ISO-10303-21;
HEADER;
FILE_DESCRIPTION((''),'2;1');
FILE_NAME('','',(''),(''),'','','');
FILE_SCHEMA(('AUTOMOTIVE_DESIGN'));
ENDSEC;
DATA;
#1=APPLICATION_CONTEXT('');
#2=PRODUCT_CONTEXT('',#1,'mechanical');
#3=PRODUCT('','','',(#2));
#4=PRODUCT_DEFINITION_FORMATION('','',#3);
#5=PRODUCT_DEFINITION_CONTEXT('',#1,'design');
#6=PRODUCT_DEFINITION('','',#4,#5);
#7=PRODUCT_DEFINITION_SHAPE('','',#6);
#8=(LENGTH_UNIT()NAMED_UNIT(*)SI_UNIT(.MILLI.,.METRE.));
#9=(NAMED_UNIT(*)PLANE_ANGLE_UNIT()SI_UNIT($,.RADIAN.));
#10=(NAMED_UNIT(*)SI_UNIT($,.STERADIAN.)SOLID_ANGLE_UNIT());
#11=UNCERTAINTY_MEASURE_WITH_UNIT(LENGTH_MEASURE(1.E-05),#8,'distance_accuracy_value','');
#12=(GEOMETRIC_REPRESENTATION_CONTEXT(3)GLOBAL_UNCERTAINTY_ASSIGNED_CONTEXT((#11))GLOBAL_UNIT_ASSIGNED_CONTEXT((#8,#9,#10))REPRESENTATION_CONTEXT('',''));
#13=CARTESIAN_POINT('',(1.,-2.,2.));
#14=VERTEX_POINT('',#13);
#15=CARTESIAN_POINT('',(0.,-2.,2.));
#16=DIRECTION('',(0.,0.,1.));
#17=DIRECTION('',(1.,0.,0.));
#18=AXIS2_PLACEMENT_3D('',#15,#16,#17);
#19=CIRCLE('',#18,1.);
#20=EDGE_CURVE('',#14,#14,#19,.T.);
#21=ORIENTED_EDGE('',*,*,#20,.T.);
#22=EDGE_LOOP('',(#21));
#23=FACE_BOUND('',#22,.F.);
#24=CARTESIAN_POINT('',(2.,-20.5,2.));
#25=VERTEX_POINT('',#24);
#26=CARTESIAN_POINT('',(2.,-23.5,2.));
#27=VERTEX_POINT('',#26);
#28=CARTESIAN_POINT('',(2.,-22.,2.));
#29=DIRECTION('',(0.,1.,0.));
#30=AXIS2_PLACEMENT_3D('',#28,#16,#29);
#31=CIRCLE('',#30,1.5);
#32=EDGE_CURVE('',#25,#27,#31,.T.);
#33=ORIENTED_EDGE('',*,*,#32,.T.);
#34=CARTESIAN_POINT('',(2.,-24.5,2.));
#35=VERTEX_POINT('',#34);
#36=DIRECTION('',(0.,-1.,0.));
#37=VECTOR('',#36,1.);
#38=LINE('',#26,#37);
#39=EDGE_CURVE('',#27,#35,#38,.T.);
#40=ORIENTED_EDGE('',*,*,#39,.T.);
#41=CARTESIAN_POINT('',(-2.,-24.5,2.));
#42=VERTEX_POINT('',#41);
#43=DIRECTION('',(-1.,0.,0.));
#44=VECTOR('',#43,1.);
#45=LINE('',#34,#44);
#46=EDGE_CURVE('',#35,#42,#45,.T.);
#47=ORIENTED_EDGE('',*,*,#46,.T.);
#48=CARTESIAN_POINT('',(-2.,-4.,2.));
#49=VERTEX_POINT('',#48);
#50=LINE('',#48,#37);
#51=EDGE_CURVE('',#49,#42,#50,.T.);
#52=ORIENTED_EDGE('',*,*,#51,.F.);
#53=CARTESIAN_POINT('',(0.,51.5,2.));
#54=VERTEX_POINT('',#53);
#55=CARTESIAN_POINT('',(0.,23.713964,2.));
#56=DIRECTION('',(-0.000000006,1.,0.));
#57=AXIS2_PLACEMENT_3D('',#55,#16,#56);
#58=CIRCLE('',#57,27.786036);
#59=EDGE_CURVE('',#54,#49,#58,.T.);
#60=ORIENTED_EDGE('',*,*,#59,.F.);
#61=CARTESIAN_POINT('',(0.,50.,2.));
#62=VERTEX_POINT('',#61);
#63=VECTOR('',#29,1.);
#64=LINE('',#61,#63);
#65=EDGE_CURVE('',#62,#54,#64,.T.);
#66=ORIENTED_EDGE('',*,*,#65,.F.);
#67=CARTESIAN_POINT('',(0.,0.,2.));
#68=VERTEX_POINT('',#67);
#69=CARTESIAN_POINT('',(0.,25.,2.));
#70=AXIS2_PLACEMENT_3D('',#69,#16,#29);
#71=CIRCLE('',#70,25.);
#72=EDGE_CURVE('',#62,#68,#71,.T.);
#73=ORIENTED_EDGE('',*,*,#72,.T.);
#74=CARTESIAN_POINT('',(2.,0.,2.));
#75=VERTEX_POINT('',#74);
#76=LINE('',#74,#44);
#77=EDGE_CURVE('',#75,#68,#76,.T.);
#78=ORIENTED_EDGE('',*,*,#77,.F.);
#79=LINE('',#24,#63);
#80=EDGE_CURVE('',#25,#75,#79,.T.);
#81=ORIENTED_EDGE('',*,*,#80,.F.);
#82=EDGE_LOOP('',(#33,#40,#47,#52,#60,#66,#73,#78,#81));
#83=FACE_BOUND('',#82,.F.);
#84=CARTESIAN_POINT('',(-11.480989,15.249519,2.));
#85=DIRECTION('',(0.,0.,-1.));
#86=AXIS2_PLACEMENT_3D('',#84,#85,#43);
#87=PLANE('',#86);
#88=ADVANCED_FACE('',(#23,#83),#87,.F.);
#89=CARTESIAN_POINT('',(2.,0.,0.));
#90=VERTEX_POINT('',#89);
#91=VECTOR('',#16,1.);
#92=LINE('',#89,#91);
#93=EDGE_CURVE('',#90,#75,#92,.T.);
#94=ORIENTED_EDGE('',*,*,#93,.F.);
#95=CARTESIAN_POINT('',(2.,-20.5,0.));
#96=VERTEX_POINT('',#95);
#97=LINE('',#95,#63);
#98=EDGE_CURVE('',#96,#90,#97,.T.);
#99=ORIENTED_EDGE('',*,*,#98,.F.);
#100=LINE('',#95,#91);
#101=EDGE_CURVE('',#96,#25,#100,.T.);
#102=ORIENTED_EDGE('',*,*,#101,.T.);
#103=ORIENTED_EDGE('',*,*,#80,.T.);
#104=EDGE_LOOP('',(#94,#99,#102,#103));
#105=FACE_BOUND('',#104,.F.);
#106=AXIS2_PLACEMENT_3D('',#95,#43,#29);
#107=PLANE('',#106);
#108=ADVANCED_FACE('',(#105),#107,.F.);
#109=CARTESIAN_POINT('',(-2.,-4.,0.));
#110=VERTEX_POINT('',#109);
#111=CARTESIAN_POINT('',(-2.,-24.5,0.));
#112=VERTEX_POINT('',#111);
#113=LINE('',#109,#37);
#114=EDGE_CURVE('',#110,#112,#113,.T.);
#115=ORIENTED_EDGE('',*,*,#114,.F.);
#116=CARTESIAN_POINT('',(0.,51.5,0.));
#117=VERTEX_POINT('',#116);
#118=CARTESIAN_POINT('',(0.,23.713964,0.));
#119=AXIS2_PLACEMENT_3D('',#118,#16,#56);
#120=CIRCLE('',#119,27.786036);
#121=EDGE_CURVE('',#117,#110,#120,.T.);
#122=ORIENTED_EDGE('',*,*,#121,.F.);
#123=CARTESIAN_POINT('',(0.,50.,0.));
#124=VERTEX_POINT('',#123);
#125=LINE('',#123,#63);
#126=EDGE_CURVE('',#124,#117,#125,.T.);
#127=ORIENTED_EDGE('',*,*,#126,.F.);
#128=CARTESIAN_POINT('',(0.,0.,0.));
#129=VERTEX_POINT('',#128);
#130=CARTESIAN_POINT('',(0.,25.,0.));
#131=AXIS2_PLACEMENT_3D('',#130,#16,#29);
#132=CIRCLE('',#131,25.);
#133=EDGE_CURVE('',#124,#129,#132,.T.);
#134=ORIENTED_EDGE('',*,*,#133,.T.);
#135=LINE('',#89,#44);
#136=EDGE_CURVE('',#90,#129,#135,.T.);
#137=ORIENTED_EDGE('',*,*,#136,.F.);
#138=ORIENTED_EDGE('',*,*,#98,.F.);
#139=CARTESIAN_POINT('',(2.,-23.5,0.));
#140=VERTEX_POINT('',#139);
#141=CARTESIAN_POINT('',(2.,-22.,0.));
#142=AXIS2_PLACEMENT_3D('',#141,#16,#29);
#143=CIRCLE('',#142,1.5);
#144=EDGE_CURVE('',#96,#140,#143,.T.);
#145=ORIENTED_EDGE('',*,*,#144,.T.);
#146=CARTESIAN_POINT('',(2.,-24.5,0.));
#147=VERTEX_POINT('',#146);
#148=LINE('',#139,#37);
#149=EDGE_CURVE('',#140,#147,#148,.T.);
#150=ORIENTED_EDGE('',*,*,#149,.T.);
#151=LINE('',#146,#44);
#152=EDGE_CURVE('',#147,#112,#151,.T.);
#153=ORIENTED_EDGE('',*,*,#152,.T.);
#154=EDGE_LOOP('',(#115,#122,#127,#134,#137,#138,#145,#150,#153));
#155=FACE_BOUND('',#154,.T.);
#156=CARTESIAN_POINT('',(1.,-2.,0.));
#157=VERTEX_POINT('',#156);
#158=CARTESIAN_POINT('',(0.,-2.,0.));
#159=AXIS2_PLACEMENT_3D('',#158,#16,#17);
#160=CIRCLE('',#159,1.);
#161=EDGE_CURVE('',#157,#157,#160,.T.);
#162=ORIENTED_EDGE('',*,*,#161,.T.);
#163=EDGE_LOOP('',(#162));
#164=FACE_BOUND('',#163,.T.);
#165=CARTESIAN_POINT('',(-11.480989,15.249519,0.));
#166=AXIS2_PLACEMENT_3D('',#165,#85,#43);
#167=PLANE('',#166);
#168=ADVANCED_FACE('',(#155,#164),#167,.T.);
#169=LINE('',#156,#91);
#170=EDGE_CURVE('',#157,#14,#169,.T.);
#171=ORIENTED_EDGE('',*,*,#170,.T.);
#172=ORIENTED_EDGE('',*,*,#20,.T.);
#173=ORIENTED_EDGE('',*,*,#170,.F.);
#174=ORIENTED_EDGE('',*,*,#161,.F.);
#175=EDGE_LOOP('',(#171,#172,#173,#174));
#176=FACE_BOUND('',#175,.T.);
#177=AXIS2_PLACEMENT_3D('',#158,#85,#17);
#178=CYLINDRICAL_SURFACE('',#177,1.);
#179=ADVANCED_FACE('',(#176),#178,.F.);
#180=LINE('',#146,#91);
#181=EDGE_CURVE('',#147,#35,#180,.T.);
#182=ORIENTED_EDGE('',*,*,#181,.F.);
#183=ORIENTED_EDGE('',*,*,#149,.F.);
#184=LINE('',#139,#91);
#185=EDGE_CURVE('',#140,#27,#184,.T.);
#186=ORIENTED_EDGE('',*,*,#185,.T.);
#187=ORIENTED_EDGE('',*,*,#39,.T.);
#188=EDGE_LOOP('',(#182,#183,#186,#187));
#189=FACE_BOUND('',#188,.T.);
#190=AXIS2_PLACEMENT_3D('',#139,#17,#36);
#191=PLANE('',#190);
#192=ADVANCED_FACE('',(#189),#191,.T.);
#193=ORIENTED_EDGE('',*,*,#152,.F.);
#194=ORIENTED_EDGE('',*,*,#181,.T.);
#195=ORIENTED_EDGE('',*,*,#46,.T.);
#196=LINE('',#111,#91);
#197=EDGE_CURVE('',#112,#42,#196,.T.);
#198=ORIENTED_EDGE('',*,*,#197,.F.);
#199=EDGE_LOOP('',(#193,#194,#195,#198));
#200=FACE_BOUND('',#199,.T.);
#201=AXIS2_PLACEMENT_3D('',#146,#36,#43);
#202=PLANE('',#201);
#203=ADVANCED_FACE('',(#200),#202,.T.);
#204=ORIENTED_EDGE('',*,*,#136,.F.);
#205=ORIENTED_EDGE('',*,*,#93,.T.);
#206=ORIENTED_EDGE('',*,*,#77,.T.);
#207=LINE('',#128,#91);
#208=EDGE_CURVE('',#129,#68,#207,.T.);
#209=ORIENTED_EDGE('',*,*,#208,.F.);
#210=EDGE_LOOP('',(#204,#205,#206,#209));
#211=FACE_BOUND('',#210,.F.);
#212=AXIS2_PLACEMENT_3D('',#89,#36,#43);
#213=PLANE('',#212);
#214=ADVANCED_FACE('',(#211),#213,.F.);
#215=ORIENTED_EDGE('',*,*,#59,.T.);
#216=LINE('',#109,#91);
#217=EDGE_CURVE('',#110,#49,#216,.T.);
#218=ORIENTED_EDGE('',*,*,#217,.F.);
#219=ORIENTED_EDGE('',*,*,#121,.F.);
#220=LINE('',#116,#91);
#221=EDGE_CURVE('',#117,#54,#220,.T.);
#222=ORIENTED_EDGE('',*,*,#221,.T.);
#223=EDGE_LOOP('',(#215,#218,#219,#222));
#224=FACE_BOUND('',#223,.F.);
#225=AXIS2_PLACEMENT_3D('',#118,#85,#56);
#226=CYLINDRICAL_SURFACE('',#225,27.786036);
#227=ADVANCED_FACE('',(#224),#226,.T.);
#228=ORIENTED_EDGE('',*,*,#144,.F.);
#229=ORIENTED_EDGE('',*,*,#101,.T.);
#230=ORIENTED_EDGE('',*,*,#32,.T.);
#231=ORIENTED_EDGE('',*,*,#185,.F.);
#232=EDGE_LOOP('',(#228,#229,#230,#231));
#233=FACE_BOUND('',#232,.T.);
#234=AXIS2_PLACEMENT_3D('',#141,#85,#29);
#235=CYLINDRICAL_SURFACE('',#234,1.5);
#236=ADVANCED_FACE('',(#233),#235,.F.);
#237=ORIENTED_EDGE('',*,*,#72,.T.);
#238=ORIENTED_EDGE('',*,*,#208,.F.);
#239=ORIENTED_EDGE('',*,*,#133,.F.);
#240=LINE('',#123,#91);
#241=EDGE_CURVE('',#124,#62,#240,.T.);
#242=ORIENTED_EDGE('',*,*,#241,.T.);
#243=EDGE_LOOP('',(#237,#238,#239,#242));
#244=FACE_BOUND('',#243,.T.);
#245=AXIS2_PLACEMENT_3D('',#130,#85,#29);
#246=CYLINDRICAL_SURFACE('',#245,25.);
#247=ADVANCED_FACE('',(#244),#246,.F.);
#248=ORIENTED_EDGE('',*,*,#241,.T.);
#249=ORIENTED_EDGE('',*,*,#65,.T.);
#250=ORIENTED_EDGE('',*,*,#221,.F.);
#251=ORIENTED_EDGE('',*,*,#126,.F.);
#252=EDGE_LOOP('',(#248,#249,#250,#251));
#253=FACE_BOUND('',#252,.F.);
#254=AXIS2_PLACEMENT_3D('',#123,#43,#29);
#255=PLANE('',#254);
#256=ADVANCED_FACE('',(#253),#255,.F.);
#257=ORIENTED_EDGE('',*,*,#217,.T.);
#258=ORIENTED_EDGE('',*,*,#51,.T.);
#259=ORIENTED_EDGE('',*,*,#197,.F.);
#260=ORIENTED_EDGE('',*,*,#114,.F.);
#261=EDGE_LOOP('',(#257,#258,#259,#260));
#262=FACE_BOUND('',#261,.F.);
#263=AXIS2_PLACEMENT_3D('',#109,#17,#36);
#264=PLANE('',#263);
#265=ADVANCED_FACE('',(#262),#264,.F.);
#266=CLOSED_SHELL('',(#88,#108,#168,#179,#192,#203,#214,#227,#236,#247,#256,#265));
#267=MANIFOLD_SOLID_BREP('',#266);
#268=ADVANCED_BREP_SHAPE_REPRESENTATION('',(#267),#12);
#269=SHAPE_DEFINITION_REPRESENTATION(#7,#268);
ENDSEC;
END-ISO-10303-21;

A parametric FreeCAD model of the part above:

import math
import FreeCAD as App
import Part
import Sketcher

doc = App.newDocument("Part")
body = doc.addObject("PartDesign::Body", "Body")

sketch1 = doc.addObject("Sketcher::SketchObject", "Sketch")
body.addObject(sketch1)
sketch1.AttachmentSupport = (doc.XY_Plane, [""])
sketch1.MapMode = "FlatFace"
sketch1.addGeometry([
    Part.ArcOfCircle(Part.Circle(App.Vector(0, 25, 0), App.Vector(0, 0, 1), 25), math.radians(90), math.radians(270)),
    Part.LineSegment(App.Vector(0, 50, 0), App.Vector(0, 51.5, 0)),
    Part.ArcOfCircle(Part.Circle(App.Vector(0, 23.713964, 0), App.Vector(0, 0, 1), 27.786036), math.radians(90), math.radians(265.87236)),
    Part.LineSegment(App.Vector(-2, -4, 0), App.Vector(-2, -24.5, 0)),
    Part.LineSegment(App.Vector(-2, -24.5, 0), App.Vector(2, -24.5, 0)),
    Part.LineSegment(App.Vector(2, -24.5, 0), App.Vector(2, -23.5, 0)),
    Part.ArcOfCircle(Part.Circle(App.Vector(2, -22, 0), App.Vector(0, 0, 1), 1.5), math.radians(90), math.radians(270)),
    Part.LineSegment(App.Vector(2, -20.5, 0), App.Vector(2, 0, 0)),
    Part.LineSegment(App.Vector(2, 0, 0), App.Vector(0, 0, 0)),
    Part.Circle(App.Vector(0, -2, 0), App.Vector(0, 0, 1), 1),
], False)
sketch1.addConstraint([
    Sketcher.Constraint("Coincident", 0, 1, 1, 1),
    Sketcher.Constraint("Coincident", 1, 2, 2, 1),
    Sketcher.Constraint("Coincident", 2, 2, 3, 1),
    Sketcher.Constraint("Coincident", 3, 2, 4, 1),
    Sketcher.Constraint("Coincident", 4, 2, 5, 1),
    Sketcher.Constraint("Coincident", 5, 2, 6, 2),
    Sketcher.Constraint("Coincident", 6, 1, 7, 1),
    Sketcher.Constraint("Coincident", 7, 2, 8, 1),
    Sketcher.Constraint("Tangent", 8, 2, 0, 2),
    Sketcher.Constraint("Vertical", 1),
    Sketcher.Constraint("Vertical", 3),
    Sketcher.Constraint("Horizontal", 4),
    Sketcher.Constraint("Vertical", 5),
    Sketcher.Constraint("Vertical", 7),
    Sketcher.Constraint("Horizontal", 8),
    Sketcher.Constraint("Coincident", 8, 2, -1, 1),
    Sketcher.Constraint("PointOnObject", 2, 3, -2),
    Sketcher.Constraint("PointOnObject", 9, 3, -2),
    Sketcher.Constraint("PointOnObject", 0, 1, -2),
    Sketcher.Constraint("Vertical", 6, 3, 4, 2),
    Sketcher.Constraint("Vertical", 5, 2, 6, 1),
    Sketcher.Constraint("Equal", 3, 7),
    Sketcher.Constraint("Diameter", 9, 2.0),
    Sketcher.Constraint("Radius", 0, 25.0),
    Sketcher.Constraint("Radius", 6, 1.5),
    Sketcher.Constraint("DistanceX", 4, 1, 4, 2, 4.0),
    Sketcher.Constraint("DistanceX", 8, 2, 8, 1, 2.0),
    Sketcher.Constraint("DistanceY", 5, 1, 5, 2, 1.0),
    Sketcher.Constraint("DistanceY", 1, 1, 1, 2, 1.5),
    Sketcher.Constraint("DistanceY", 3, 2, 3, 1, 20.5),
    Sketcher.Constraint("DistanceY", 9, 3, -1, 1, 2.0),
])
pad1 = doc.addObject("PartDesign::Pad", "Pad")
body.addObject(pad1)
pad1.Profile = sketch1
pad1.Length = 2

doc.recompute()
